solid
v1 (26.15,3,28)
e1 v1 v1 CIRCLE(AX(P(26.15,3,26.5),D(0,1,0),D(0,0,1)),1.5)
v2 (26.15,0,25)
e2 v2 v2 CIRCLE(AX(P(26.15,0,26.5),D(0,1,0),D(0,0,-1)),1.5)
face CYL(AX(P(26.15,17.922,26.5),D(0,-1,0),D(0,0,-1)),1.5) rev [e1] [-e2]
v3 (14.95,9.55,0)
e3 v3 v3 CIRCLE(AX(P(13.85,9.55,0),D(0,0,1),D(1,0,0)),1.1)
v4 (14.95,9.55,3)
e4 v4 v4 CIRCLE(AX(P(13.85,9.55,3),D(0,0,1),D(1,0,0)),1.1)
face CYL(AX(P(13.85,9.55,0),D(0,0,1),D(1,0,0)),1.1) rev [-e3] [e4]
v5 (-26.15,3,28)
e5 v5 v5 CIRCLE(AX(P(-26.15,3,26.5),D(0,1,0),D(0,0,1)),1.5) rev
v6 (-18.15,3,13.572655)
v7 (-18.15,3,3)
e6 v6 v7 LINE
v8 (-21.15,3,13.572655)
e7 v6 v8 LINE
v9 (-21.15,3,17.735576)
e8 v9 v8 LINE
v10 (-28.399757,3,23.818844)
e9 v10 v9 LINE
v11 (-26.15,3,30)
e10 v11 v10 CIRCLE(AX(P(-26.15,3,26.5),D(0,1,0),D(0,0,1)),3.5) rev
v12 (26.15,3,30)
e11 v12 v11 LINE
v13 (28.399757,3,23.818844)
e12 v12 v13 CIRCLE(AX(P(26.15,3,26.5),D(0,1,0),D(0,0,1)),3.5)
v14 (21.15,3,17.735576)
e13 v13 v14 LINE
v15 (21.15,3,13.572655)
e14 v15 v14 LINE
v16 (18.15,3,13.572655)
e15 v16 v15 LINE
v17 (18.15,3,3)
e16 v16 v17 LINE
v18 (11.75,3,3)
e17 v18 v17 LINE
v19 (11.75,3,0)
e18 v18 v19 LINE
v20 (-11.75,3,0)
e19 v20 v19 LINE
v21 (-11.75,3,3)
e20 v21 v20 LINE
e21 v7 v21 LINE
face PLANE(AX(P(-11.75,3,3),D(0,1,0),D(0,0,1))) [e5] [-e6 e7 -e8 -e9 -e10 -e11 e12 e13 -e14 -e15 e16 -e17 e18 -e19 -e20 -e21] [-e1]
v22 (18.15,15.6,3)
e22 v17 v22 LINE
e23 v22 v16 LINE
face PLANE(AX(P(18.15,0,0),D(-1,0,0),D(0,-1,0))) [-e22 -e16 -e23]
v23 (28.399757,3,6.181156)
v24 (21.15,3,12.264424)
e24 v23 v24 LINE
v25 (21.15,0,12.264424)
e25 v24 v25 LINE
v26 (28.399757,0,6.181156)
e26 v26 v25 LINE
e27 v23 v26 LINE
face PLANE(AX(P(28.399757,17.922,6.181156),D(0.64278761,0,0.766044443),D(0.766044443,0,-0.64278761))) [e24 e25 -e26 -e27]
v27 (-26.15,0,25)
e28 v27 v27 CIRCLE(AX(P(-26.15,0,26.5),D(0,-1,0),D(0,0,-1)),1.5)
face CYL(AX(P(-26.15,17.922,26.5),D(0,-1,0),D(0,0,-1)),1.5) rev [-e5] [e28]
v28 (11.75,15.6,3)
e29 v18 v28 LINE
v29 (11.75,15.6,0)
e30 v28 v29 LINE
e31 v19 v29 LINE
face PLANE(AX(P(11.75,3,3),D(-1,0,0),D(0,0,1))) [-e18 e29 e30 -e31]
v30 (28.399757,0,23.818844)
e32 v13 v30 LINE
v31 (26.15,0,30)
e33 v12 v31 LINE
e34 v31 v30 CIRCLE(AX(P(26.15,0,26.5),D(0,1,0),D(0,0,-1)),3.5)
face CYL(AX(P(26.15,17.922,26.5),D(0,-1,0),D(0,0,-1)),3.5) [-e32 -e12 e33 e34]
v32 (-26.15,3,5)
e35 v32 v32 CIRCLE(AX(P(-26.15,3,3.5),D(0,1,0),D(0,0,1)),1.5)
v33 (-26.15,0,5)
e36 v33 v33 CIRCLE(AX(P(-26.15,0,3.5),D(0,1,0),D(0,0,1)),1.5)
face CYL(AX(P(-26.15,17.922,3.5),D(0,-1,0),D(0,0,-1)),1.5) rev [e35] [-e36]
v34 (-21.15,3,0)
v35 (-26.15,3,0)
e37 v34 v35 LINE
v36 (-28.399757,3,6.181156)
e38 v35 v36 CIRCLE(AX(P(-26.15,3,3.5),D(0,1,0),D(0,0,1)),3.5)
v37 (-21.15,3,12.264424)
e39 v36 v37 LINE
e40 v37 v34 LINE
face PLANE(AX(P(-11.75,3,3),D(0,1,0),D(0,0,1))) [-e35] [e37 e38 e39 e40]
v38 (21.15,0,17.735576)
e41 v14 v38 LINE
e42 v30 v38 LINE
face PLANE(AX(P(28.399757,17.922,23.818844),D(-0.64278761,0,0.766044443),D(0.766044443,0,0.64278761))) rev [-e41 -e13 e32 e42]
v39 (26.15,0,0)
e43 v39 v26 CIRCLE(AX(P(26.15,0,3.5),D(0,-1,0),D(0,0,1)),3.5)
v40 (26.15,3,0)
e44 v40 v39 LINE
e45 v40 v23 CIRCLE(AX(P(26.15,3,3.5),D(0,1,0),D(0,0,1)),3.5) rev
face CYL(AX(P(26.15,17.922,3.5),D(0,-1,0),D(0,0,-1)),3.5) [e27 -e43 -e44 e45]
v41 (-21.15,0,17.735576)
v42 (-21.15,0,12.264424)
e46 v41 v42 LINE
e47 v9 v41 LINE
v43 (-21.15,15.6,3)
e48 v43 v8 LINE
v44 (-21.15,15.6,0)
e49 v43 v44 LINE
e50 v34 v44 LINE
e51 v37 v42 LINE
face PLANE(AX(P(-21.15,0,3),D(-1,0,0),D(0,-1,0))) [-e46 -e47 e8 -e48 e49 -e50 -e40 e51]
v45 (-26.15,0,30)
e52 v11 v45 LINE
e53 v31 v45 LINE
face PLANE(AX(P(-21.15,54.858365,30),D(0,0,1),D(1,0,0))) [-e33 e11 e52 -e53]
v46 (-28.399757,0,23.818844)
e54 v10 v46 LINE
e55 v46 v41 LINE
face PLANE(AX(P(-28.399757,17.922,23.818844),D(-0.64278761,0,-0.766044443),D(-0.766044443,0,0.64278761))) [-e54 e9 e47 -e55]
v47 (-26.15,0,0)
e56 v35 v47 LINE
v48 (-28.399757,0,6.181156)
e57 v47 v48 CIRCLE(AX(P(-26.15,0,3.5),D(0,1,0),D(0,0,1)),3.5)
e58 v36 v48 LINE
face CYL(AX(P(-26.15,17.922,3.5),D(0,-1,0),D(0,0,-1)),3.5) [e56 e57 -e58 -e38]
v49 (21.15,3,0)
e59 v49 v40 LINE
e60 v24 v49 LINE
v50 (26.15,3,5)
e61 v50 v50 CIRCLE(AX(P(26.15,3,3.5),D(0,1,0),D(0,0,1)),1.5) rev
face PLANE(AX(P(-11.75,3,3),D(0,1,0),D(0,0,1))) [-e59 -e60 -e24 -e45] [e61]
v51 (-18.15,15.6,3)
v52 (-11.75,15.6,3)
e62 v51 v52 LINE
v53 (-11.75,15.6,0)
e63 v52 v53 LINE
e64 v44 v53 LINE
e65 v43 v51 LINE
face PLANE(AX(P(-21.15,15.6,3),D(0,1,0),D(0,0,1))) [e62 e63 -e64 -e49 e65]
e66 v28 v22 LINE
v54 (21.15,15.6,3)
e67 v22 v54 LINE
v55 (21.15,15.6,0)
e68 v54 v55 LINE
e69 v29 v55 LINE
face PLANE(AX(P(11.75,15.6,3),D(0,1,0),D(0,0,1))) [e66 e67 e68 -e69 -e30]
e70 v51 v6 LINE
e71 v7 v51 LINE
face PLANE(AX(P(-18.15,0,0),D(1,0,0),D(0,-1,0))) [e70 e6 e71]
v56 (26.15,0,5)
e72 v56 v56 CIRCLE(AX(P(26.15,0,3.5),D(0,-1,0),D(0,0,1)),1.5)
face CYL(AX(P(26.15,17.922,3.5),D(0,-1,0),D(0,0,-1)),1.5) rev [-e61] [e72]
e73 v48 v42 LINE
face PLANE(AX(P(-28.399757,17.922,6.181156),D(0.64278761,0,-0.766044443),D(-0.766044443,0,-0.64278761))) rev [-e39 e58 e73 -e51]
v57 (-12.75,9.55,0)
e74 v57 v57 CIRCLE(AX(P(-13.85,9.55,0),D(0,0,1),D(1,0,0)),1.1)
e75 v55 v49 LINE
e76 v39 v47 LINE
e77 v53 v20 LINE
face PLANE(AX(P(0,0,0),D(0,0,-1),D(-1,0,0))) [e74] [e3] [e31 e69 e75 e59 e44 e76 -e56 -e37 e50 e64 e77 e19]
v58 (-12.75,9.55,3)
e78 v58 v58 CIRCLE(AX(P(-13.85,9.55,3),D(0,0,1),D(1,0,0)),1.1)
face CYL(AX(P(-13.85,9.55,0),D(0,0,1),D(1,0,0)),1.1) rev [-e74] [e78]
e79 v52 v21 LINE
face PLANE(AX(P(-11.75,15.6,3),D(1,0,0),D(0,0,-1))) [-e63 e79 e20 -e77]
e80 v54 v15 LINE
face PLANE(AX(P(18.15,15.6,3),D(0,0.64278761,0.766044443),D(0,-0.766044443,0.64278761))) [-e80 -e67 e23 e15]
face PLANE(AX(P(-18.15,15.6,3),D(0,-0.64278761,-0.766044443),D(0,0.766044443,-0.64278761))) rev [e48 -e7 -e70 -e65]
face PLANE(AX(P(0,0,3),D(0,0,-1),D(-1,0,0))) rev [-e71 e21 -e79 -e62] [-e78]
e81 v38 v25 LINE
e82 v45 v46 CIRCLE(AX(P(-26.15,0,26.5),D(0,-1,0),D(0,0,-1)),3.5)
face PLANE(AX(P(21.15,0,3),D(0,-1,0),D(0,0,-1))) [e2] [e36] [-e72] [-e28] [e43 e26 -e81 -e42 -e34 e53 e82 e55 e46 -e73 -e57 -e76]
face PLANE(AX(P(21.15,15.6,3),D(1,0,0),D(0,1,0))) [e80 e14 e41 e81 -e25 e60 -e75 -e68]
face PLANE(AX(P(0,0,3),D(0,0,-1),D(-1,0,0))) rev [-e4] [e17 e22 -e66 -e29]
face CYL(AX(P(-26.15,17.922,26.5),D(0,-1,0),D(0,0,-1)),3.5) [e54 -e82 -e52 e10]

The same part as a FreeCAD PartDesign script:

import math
import FreeCAD as App
import Part
import Sketcher
from FreeCAD import Vector
Q = App.Units.Quantity


def add_polygon(sketch, points):
    """Adds a closed chain of lines whose ends are joined by coincident constraints."""
    first, n = sketch.GeometryCount, len(points)
    for a, b in zip(points, points[1:] + points[:1]):
        sketch.addGeometry(Part.LineSegment(App.Vector(*a, 0), App.Vector(*b, 0)), False)
    for i in range(n):
        sketch.addConstraint(Sketcher.Constraint("Coincident", first + i, 2, first + (i + 1) % n, 1))

doc = App.newDocument("Part")
body = doc.addObject("PartDesign::Body", "Body")

# Sketch on XY plane
sketch1 = body.newObject("Sketcher::SketchObject", "Sketch")
sketch1.AttachmentSupport = (doc.getObject("XY_Plane"), [""])
sketch1.MapMode = "FlatFace"
add_polygon(sketch1, [(11.75, 3), (-11.75, 3), (-11.75, 15.6), (-21.15, 15.6), (-21.15, 0), (21.15, 0), (21.15, 15.6), (11.75, 15.6)])  # lines 0-7
sketch1.addConstraint(Sketcher.Constraint("Horizontal", 0))
sketch1.addConstraint(Sketcher.Constraint("Vertical", 1))
sketch1.addConstraint(Sketcher.Constraint("Horizontal", 2))
sketch1.addConstraint(Sketcher.Constraint("Vertical", 3))
sketch1.addConstraint(Sketcher.Constraint("Horizontal", 4))
sketch1.addConstraint(Sketcher.Constraint("Vertical", 5))
sketch1.addConstraint(Sketcher.Constraint("Horizontal", 6))
sketch1.addConstraint(Sketcher.Constraint("Vertical", 7))
sketch1.addConstraint(Sketcher.Constraint("Symmetric", 3, 2, 4, 2, -1, 1))
sketch1.addConstraint(Sketcher.Constraint("Symmetric", 1, 2, 6, 2, -2))
sketch1.addConstraint(Sketcher.Constraint("DistanceX", 0, 2, 0, 1, 23.5))
sketch1.addConstraint(Sketcher.Constraint("DistanceX", 2, 2, 2, 1, 9.4))
sketch1.addConstraint(Sketcher.Constraint("DistanceY", 1, 1, 1, 2, 12.6))
sketch1.addConstraint(Sketcher.Constraint("DistanceY", 3, 2, 3, 1, 15.6))
pad1 = body.newObject("PartDesign::Pad", "Pad")
pad1.Profile = sketch1
pad1.Length = 3

# Sketch on XZ plane
sketch2 = body.newObject("Sketcher::SketchObject", "Sketch001")
sketch2.AttachmentSupport = (doc.getObject("XZ_Plane"), [""])
sketch2.MapMode = "FlatFace"
add_polygon(sketch2, [(-21.15, 30), (-21.15, 0), (21.15, 0), (21.15, 30)])  # lines 0-3
sketch2.addConstraint(Sketcher.Constraint("Vertical", 0))
sketch2.addConstraint(Sketcher.Constraint("Horizontal", 1))
sketch2.addConstraint(Sketcher.Constraint("Vertical", 2))
sketch2.addConstraint(Sketcher.Constraint("Horizontal", 3))
sketch2.addConstraint(Sketcher.Constraint("Symmetric", 0, 2, 1, 2, -1, 1))
sketch2.addConstraint(Sketcher.Constraint("DistanceY", 0, 2, 0, 1, 30.0))
sketch2.addConstraint(Sketcher.Constraint("DistanceX", 1, 1, 1, 2, 42.3))
pad2 = body.newObject("PartDesign::Pad", "Pad001")
pad2.Profile = sketch2
pad2.Length = 3
pad2.Reversed = True

# Sketch on XY plane
sketch3 = body.newObject("Sketcher::SketchObject", "Sketch002")
sketch3.AttachmentSupport = (doc.getObject("XY_Plane"), [""])
sketch3.MapMode = "FlatFace"
sketch3.AttachmentOffset = App.Placement(Vector(0, 0, 3), App.Rotation())
sketch3.addGeometry(Part.Circle(Vector(13.85, 9.55, 0), Vector(0, 0, 1), 1.1), False)
sketch3.addGeometry(Part.Circle(Vector(-13.85, 9.55, 0), Vector(0, 0, 1), 1.1), False)
sketch3.addConstraint(Sketcher.Constraint("Equal", 0, 1))
sketch3.addConstraint(Sketcher.Constraint("Symmetric", 0, 3, 1, 3, -2))
sketch3.addConstraint(Sketcher.Constraint("Diameter", 0, 2.2))
sketch3.addConstraint(Sketcher.Constraint("DistanceX", 1, 3, 0, 3, 27.7))
sketch3.addConstraint(Sketcher.Constraint("DistanceY", -1, 1, 0, 3, 9.55))
pocket1 = body.newObject("PartDesign::Pocket", "Pocket")
pocket1.Profile = sketch3
pocket1.Type = "ThroughAll"

# Sketch on YZ plane
sketch4 = body.newObject("Sketcher::SketchObject", "Sketch003")
sketch4.AttachmentSupport = (doc.getObject("YZ_Plane"), [""])
sketch4.MapMode = "FlatFace"
sketch4.AttachmentOffset = App.Placement(Vector(0, 0, 21.15), App.Rotation())
add_polygon(sketch4, [(15.6, 3), (3, 13.572655), (3, 3)])  # lines 0-2
sketch4.addConstraint(Sketcher.Constraint("Vertical", 1))
sketch4.addConstraint(Sketcher.Constraint("Horizontal", 2))
sketch4.addConstraint(Sketcher.Constraint("Angle", 0, Q("140 deg")))
sketch4.addConstraint(Sketcher.Constraint("DistanceX", 2, 1, 2, 2, 12.6))
sketch4.addConstraint(Sketcher.Constraint("DistanceX", -1, 1, 0, 2, 3.0))
sketch4.addConstraint(Sketcher.Constraint("DistanceY", -1, 1, 1, 2, 3.0))
pad3 = body.newObject("PartDesign::Pad", "Pad002")
pad3.Profile = sketch4
pad3.Length = 3
pad3.Reversed = True
doc.recompute()

mirrored = body.newObject("PartDesign::Mirrored", "Mirrored")
mirrored.Originals = [pad3]
mirrored.MirrorPlane = (doc.getObject("YZ_Plane"), [""])
body.Tip = mirrored

# Sketch on XZ plane
sketch5 = body.newObject("Sketcher::SketchObject", "Sketch004")
sketch5.AttachmentSupport = (doc.getObject("XZ_Plane"), [""])
sketch5.MapMode = "FlatFace"
sketch5.AttachmentOffset = App.Placement(Vector(0, 0, -3), App.Rotation())
sketch5.addGeometry(Part.LineSegment(Vector(-21.15, 30, 0), Vector(-26.15, 30, 0)), False)
sketch5.addGeometry(Part.ArcOfCircle(Part.Circle(Vector(-26.15, 26.5, 0), Vector(0, 0, 1), 3.5), math.radians(90), math.radians(230)), False)
sketch5.addGeometry(Part.LineSegment(Vector(-28.399757, 23.818844, 0), Vector(-21.15, 17.735576, 0)), False)
sketch5.addGeometry(Part.LineSegment(Vector(-21.15, 17.735576, 0), Vector(-21.15, 30, 0)), False)
sketch5.addGeometry(Part.Circle(Vector(-26.15, 26.5, 0), Vector(0, 0, 1), 1.5), False)
sketch5.addConstraint(Sketcher.Constraint("Tangent", 0, 2, 1, 1))
sketch5.addConstraint(Sketcher.Constraint("Tangent", 1, 2, 2, 1))
sketch5.addConstraint(Sketcher.Constraint("Coincident", 2, 2, 3, 1))
sketch5.addConstraint(Sketcher.Constraint("Coincident", 3, 2, 0, 1))
sketch5.addConstraint(Sketcher.Constraint("Horizontal", 0))
sketch5.addConstraint(Sketcher.Constraint("Vertical", 3))
sketch5.addConstraint(Sketcher.Constraint("Coincident", 4, 3, 1, 3))
sketch5.addConstraint(Sketcher.Constraint("Diameter", 4, 3.0))
sketch5.addConstraint(Sketcher.Constraint("Radius", 1, 3.5))
sketch5.addConstraint(Sketcher.Constraint("DistanceX", 0, 2, 0, 1, 5.0))
sketch5.addConstraint(Sketcher.Constraint("Angle", 2, Q("-40 deg")))
sketch5.addConstraint(Sketcher.Constraint("DistanceY", -1, 1, 0, 2, 30.0))
sketch5.addConstraint(Sketcher.Constraint("DistanceX", 1, 3, -1, 1, 26.15))
pad4 = body.newObject("PartDesign::Pad", "Pad003")
pad4.Profile = sketch5
pad4.Length = 3
doc.recompute()

datumplane = body.newObject("PartDesign::Plane", "DatumPlane")
datumplane.AttachmentSupport = (doc.getObject("XY_Plane"), [""])
datumplane.MapMode = "FlatFace"
datumplane.AttachmentOffset = App.Placement(Vector(0, 0, 15), App.Rotation())
mirrored2 = body.newObject("PartDesign::Mirrored", "Mirrored001")
mirrored2.Originals = [pad4]
mirrored2.MirrorPlane = (datumplane, [""])
body.Tip = mirrored2
doc.recompute()

mirrored3 = body.newObject("PartDesign::Mirrored", "Mirrored002")
mirrored3.Originals = [pad4]
mirrored3.MirrorPlane = (doc.getObject("YZ_Plane"), [""])
body.Tip = mirrored3

# Sketch on XZ plane
sketch6 = body.newObject("Sketcher::SketchObject", "Sketch005")
sketch6.AttachmentSupport = (doc.getObject("XZ_Plane"), [""])
sketch6.MapMode = "FlatFace"
sketch6.AttachmentOffset = App.Placement(Vector(0, 0, -3), App.Rotation())
sketch6.addGeometry(Part.LineSegment(Vector(21.15, 0, 0), Vector(26.15, 0, 0)), False)
sketch6.addGeometry(Part.ArcOfCircle(Part.Circle(Vector(26.15, 3.5, 0), Vector(0, 0, 1), 3.5), math.radians(-90), math.radians(50)), False)
sketch6.addGeometry(Part.LineSegment(Vector(28.399757, 6.181156, 0), Vector(21.15, 12.264424, 0)), False)
sketch6.addGeometry(Part.LineSegment(Vector(21.15, 12.264424, 0), Vector(21.15, 0, 0)), False)
sketch6.addGeometry(Part.Circle(Vector(26.15, 3.5, 0), Vector(0, 0, 1), 1.5), False)
sketch6.addConstraint(Sketcher.Constraint("Tangent", 0, 2, 1, 1))
sketch6.addConstraint(Sketcher.Constraint("Tangent", 1, 2, 2, 1))
sketch6.addConstraint(Sketcher.Constraint("Coincident", 2, 2, 3, 1))
sketch6.addConstraint(Sketcher.Constraint("Coincident", 3, 2, 0, 1))
sketch6.addConstraint(Sketcher.Constraint("Horizontal", 0))
sketch6.addConstraint(Sketcher.Constraint("Vertical", 3))
sketch6.addConstraint(Sketcher.Constraint("Coincident", 4, 3, 1, 3))
sketch6.addConstraint(Sketcher.Constraint("PointOnObject", 0, 2, -1))
sketch6.addConstraint(Sketcher.Constraint("Diameter", 4, 3.0))
sketch6.addConstraint(Sketcher.Constraint("Radius", 1, 3.5))
sketch6.addConstraint(Sketcher.Constraint("DistanceX", 0, 1, 0, 2, 5.0))
sketch6.addConstraint(Sketcher.Constraint("Angle", 2, Q("140 deg")))
sketch6.addConstraint(Sketcher.Constraint("DistanceX", -1, 1, 1, 3, 26.15))
pad5 = body.newObject("PartDesign::Pad", "Pad004")
pad5.Profile = sketch6
pad5.Length = 3

doc.recompute()
